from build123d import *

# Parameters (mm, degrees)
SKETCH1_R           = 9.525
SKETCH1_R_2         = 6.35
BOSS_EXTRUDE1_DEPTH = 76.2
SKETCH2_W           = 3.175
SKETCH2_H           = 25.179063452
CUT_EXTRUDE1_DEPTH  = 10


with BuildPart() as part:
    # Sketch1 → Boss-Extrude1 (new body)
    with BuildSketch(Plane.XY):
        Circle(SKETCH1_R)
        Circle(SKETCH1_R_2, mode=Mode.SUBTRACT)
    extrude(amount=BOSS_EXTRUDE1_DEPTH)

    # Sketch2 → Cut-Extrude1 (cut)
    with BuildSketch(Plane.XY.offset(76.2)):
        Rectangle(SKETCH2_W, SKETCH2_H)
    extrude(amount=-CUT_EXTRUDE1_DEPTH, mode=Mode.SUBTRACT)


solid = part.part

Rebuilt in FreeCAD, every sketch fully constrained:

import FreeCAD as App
import Part
import Sketcher

V = App.Vector
Q = App.Units.Quantity


def add_polygon(sketch, points):
    """Adds a closed chain of lines whose ends are joined by coincident constraints."""
    first, n = sketch.GeometryCount, len(points)
    for a, b in zip(points, points[1:] + points[:1]):
        sketch.addGeometry(Part.LineSegment(App.Vector(*a, 0), App.Vector(*b, 0)), False)
    for i in range(n):
        sketch.addConstraint(Sketcher.Constraint("Coincident", first + i, 2, first + (i + 1) % n, 1))

doc = App.newDocument("Part")
body = doc.addObject("PartDesign::Body", "Body")

# Sketch on XY plane
sketch1 = body.newObject("Sketcher::SketchObject", "Sketch")
sketch1.AttachmentSupport = (doc.getObject("XY_Plane"), [""])
sketch1.MapMode = "FlatFace"
sketch1.addGeometry([
    Part.Circle(V(0, 0, 0), V(0, 0, 1), 9.525),
    Part.Circle(V(0, 0, 0), V(0, 0, 1), 6.35),
], False)
sketch1.addConstraint([
    Sketcher.Constraint("Coincident", 0, 3, -1, 1),
    Sketcher.Constraint("Coincident", 1, 3, -1, 1),
    Sketcher.Constraint("Diameter", 1, Q("0.5 in")),
    Sketcher.Constraint("Diameter", 0, Q("0.75 in")),
])
pad1 = body.newObject("PartDesign::Pad", "Pad")
pad1.Profile = sketch1
pad1.Length = Q("3 in")

# Sketch on XY plane
sketch2 = body.newObject("Sketcher::SketchObject", "Sketch001")
sketch2.AttachmentSupport = (doc.getObject("XY_Plane"), [""])
sketch2.MapMode = "FlatFace"
sketch2.AttachmentOffset = App.Placement(V(0, 0, 3 * 25.4), App.Rotation())
add_polygon(sketch2, [(-1.5875, 12.589532), (-1.5875, -12.589532), (1.5875, -12.589532), (1.5875, 12.589532)])  # lines 0-3
sketch2.addConstraint([
    Sketcher.Constraint("Vertical", 0),
    Sketcher.Constraint("Horizontal", 1),
    Sketcher.Constraint("Vertical", 2),
    Sketcher.Constraint("Horizontal", 3),
    Sketcher.Constraint("Symmetric", 0, 2, 2, 2, -1, 1),
    Sketcher.Constraint("DistanceX", 1, 1, 1, 2, Q("0.125 in")),
    Sketcher.Constraint("DistanceY", 0, 2, 0, 1, Q("25.179063 mm")),
])
pocket1 = body.newObject("PartDesign::Pocket", "Pocket")
pocket1.Profile = sketch2
pocket1.Length = 10

doc.recompute()
